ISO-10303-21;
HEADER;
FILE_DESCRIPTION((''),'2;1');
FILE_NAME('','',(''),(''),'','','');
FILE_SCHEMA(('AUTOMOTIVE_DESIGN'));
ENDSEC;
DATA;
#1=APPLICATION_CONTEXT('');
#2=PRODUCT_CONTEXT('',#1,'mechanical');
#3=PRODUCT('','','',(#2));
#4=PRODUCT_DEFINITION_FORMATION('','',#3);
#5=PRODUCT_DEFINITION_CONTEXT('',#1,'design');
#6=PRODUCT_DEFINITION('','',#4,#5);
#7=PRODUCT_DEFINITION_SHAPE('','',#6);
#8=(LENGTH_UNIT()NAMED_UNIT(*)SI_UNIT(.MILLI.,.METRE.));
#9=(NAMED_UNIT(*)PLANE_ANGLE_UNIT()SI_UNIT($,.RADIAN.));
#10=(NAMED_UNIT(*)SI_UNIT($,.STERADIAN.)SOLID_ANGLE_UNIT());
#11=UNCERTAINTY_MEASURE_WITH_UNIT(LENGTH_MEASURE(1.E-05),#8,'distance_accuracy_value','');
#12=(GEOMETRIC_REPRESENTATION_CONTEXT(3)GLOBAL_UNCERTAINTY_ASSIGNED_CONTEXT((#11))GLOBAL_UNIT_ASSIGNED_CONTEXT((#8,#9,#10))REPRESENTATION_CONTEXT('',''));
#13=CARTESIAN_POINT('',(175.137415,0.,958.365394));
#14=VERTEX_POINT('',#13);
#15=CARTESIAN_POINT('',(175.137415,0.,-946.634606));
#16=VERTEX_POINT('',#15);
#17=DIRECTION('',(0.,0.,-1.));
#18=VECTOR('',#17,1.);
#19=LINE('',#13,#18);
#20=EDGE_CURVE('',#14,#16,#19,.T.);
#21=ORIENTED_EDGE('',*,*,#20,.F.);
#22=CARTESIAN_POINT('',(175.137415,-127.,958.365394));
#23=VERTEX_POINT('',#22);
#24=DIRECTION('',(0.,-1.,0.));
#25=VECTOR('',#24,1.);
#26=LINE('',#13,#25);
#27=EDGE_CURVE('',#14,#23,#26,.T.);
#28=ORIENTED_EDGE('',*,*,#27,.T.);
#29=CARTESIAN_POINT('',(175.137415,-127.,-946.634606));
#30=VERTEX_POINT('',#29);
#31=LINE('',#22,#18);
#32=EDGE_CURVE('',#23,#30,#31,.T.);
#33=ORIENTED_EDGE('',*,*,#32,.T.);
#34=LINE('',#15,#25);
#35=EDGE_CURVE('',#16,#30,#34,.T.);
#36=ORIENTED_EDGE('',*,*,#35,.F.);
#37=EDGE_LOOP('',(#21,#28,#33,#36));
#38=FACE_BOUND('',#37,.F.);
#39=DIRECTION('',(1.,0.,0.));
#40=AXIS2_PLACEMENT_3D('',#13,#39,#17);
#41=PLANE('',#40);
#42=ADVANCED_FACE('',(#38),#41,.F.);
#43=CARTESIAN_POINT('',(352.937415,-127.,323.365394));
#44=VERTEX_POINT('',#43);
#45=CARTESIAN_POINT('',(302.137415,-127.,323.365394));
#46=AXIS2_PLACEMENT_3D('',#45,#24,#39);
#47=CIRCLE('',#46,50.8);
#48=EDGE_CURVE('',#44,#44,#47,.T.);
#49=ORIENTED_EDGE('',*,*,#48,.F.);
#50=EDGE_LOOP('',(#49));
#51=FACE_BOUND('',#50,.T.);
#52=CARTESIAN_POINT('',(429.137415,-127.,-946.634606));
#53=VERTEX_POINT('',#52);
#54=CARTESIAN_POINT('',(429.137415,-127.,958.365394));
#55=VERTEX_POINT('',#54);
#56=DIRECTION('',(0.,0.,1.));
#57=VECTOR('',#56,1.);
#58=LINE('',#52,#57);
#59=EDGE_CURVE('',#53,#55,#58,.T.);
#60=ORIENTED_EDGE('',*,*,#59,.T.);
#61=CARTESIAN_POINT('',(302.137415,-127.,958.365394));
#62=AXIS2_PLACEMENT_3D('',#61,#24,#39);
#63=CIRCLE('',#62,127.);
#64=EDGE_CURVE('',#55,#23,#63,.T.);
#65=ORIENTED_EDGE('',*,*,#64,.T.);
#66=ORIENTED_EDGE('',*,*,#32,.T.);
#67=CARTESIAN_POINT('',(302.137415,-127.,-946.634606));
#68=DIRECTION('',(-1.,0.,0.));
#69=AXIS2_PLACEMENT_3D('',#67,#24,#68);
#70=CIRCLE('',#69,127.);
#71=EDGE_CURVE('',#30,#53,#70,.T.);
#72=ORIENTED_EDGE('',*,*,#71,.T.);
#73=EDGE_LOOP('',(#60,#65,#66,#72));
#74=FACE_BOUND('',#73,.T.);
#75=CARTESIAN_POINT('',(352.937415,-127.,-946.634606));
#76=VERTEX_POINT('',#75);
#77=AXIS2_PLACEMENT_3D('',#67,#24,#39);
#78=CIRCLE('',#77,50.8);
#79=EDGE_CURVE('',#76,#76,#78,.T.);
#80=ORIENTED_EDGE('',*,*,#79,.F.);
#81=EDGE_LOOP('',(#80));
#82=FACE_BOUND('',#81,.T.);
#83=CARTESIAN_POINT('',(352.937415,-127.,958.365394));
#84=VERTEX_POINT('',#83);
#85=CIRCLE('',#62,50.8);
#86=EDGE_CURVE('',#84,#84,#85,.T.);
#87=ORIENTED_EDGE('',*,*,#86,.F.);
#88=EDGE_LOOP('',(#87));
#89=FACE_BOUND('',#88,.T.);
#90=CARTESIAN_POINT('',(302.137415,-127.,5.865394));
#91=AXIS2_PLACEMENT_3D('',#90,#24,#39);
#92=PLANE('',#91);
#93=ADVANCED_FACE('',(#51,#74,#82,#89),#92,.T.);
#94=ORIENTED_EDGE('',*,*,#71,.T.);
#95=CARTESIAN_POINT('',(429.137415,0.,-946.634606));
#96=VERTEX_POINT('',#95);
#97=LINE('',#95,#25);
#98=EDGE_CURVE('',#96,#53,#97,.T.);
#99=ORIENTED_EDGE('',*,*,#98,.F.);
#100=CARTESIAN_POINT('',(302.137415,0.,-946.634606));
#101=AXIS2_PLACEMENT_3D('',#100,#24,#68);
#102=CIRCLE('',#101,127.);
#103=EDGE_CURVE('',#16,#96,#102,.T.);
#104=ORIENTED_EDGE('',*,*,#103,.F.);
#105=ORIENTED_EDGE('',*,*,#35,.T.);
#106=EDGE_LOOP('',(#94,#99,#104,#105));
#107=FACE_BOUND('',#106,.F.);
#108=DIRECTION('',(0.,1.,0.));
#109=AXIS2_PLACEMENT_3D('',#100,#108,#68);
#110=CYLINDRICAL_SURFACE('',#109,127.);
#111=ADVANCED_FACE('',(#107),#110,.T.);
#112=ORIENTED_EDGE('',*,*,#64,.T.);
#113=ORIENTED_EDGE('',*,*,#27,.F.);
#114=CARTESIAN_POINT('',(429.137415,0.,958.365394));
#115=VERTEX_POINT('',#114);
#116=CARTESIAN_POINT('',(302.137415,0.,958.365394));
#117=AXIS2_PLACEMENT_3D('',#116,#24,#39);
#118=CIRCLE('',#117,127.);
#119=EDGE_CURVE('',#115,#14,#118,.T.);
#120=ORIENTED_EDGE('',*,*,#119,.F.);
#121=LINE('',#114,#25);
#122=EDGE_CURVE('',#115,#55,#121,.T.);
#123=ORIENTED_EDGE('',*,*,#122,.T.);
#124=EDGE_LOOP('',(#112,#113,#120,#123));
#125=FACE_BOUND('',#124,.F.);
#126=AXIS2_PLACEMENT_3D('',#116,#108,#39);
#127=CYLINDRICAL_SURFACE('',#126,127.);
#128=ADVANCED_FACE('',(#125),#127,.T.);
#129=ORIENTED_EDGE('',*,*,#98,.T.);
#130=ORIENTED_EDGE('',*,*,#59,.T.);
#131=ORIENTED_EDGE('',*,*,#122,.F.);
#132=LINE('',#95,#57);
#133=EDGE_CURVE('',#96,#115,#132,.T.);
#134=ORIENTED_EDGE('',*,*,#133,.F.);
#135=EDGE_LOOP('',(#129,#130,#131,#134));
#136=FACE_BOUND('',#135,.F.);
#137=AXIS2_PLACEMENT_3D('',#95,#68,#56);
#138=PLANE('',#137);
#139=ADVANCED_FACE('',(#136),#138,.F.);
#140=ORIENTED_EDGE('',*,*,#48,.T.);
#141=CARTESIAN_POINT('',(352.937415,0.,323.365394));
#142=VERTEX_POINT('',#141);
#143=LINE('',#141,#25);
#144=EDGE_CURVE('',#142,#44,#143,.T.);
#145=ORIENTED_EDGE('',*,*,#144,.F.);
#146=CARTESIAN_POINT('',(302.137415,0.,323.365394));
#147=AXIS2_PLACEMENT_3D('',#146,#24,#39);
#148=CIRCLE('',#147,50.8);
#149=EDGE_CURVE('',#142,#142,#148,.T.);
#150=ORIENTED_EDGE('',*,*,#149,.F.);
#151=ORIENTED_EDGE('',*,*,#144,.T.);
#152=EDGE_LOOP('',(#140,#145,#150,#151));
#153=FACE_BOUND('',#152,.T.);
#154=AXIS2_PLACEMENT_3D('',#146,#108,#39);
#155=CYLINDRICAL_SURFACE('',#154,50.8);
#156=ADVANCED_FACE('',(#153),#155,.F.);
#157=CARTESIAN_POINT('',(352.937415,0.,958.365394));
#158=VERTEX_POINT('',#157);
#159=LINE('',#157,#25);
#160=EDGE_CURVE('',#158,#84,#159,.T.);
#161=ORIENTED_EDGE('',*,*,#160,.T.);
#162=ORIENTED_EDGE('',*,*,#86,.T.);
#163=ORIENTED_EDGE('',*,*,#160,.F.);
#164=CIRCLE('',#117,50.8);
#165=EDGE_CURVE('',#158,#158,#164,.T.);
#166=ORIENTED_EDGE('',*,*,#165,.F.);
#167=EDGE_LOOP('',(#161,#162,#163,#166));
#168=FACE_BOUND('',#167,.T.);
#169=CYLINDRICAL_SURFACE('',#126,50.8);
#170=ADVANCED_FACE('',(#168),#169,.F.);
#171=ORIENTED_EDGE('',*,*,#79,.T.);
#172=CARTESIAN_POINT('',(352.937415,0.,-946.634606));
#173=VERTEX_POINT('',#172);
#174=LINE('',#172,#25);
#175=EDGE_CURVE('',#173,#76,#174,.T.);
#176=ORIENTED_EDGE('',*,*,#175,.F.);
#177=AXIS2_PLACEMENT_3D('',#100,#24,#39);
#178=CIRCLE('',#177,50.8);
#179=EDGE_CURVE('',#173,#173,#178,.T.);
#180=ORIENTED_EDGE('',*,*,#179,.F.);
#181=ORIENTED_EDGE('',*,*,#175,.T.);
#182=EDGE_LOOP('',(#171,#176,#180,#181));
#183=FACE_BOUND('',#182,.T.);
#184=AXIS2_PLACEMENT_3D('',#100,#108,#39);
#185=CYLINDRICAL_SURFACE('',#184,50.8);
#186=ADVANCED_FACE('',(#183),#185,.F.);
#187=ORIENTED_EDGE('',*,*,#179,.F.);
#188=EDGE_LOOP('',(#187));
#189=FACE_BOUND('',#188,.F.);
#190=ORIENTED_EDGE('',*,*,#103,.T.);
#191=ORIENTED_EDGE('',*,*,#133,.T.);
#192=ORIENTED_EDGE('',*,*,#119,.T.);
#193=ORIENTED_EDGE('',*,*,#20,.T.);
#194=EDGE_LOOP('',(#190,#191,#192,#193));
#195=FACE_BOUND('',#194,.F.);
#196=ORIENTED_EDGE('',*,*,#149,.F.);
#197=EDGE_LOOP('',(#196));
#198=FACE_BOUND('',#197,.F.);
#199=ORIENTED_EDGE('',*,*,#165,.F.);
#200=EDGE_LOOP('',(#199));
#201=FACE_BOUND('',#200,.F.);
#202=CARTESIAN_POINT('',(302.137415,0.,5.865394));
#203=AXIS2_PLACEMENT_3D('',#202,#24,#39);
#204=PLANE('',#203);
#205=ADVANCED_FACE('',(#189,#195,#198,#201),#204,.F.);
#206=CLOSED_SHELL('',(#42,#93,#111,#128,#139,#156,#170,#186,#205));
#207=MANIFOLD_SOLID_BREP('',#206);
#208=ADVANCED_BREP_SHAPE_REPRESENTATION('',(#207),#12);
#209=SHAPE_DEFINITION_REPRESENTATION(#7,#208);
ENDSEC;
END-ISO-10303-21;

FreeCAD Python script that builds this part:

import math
import FreeCAD as App
import Part
import Sketcher
Q = App.Units.Quantity

doc = App.newDocument("Part")
body = doc.addObject("PartDesign::Body", "Body")

# Sketch on XZ plane
sketch1 = doc.addObject("Sketcher::SketchObject", "Sketch")
body.addObject(sketch1)
sketch1.AttachmentSupport = (doc.XZ_Plane, [""])
sketch1.MapMode = "FlatFace"
sketch1.addGeometry(Part.ArcOfCircle(Part.Circle(App.Vector(302.137415, 958.365394, 0), App.Vector(0, 0, 1), 127), math.radians(0), math.radians(180)), False)
sketch1.addGeometry(Part.LineSegment(App.Vector(175.137415, 958.365394, 0), App.Vector(175.137415, -946.634606, 0)), False)
sketch1.addGeometry(Part.ArcOfCircle(Part.Circle(App.Vector(302.137415, -946.634606, 0), App.Vector(0, 0, 1), 127), math.radians(180), math.radians(360)), False)
sketch1.addGeometry(Part.LineSegment(App.Vector(429.137415, -946.634606, 0), App.Vector(429.137415, 958.365394, 0)), False)
sketch1.addGeometry(Part.Circle(App.Vector(302.137415, -946.634606, 0), App.Vector(0, 0, 1), 50.8), False)
sketch1.addGeometry(Part.Circle(App.Vector(302.137415, 323.365394, 0), App.Vector(0, 0, 1), 50.8), False)
sketch1.addGeometry(Part.Circle(App.Vector(302.137415, 958.365394, 0), App.Vector(0, 0, 1), 50.8), False)
sketch1.addConstraint(Sketcher.Constraint("Tangent", 0, 2, 1, 1))
sketch1.addConstraint(Sketcher.Constraint("Tangent", 1, 2, 2, 1))
sketch1.addConstraint(Sketcher.Constraint("Tangent", 2, 2, 3, 1))
sketch1.addConstraint(Sketcher.Constraint("Tangent", 3, 2, 0, 1))
sketch1.addConstraint(Sketcher.Constraint("Vertical", 1))
sketch1.addConstraint(Sketcher.Constraint("Vertical", 3))
sketch1.addConstraint(Sketcher.Constraint("Coincident", 4, 3, 2, 3))
sketch1.addConstraint(Sketcher.Constraint("Coincident", 6, 3, 0, 3))
sketch1.addConstraint(Sketcher.Constraint("Equal", 4, 5))
sketch1.addConstraint(Sketcher.Constraint("Equal", 5, 6))
sketch1.addConstraint(Sketcher.Constraint("Vertical", 4, 3, 5, 3))
sketch1.addConstraint(Sketcher.Constraint("Diameter", 4, Q("4 in")))
sketch1.addConstraint(Sketcher.Constraint("Radius", 0, Q("5 in")))
sketch1.addConstraint(Sketcher.Constraint("DistanceY", 1, 2, 1, 1, Q("75 in")))
sketch1.addConstraint(Sketcher.Constraint("DistanceY", 5, 3, 0, 3, Q("25 in")))
sketch1.addConstraint(Sketcher.Constraint("DistanceX", -1, 1, 0, 3, 302.137415))
sketch1.addConstraint(Sketcher.Constraint("DistanceY", -1, 1, 0, 3, 958.365394))
pad1 = doc.addObject("PartDesign::Pad", "Pad")
body.addObject(pad1)
pad1.Profile = sketch1
pad1.Length = Q("5 in")

doc.recompute()
